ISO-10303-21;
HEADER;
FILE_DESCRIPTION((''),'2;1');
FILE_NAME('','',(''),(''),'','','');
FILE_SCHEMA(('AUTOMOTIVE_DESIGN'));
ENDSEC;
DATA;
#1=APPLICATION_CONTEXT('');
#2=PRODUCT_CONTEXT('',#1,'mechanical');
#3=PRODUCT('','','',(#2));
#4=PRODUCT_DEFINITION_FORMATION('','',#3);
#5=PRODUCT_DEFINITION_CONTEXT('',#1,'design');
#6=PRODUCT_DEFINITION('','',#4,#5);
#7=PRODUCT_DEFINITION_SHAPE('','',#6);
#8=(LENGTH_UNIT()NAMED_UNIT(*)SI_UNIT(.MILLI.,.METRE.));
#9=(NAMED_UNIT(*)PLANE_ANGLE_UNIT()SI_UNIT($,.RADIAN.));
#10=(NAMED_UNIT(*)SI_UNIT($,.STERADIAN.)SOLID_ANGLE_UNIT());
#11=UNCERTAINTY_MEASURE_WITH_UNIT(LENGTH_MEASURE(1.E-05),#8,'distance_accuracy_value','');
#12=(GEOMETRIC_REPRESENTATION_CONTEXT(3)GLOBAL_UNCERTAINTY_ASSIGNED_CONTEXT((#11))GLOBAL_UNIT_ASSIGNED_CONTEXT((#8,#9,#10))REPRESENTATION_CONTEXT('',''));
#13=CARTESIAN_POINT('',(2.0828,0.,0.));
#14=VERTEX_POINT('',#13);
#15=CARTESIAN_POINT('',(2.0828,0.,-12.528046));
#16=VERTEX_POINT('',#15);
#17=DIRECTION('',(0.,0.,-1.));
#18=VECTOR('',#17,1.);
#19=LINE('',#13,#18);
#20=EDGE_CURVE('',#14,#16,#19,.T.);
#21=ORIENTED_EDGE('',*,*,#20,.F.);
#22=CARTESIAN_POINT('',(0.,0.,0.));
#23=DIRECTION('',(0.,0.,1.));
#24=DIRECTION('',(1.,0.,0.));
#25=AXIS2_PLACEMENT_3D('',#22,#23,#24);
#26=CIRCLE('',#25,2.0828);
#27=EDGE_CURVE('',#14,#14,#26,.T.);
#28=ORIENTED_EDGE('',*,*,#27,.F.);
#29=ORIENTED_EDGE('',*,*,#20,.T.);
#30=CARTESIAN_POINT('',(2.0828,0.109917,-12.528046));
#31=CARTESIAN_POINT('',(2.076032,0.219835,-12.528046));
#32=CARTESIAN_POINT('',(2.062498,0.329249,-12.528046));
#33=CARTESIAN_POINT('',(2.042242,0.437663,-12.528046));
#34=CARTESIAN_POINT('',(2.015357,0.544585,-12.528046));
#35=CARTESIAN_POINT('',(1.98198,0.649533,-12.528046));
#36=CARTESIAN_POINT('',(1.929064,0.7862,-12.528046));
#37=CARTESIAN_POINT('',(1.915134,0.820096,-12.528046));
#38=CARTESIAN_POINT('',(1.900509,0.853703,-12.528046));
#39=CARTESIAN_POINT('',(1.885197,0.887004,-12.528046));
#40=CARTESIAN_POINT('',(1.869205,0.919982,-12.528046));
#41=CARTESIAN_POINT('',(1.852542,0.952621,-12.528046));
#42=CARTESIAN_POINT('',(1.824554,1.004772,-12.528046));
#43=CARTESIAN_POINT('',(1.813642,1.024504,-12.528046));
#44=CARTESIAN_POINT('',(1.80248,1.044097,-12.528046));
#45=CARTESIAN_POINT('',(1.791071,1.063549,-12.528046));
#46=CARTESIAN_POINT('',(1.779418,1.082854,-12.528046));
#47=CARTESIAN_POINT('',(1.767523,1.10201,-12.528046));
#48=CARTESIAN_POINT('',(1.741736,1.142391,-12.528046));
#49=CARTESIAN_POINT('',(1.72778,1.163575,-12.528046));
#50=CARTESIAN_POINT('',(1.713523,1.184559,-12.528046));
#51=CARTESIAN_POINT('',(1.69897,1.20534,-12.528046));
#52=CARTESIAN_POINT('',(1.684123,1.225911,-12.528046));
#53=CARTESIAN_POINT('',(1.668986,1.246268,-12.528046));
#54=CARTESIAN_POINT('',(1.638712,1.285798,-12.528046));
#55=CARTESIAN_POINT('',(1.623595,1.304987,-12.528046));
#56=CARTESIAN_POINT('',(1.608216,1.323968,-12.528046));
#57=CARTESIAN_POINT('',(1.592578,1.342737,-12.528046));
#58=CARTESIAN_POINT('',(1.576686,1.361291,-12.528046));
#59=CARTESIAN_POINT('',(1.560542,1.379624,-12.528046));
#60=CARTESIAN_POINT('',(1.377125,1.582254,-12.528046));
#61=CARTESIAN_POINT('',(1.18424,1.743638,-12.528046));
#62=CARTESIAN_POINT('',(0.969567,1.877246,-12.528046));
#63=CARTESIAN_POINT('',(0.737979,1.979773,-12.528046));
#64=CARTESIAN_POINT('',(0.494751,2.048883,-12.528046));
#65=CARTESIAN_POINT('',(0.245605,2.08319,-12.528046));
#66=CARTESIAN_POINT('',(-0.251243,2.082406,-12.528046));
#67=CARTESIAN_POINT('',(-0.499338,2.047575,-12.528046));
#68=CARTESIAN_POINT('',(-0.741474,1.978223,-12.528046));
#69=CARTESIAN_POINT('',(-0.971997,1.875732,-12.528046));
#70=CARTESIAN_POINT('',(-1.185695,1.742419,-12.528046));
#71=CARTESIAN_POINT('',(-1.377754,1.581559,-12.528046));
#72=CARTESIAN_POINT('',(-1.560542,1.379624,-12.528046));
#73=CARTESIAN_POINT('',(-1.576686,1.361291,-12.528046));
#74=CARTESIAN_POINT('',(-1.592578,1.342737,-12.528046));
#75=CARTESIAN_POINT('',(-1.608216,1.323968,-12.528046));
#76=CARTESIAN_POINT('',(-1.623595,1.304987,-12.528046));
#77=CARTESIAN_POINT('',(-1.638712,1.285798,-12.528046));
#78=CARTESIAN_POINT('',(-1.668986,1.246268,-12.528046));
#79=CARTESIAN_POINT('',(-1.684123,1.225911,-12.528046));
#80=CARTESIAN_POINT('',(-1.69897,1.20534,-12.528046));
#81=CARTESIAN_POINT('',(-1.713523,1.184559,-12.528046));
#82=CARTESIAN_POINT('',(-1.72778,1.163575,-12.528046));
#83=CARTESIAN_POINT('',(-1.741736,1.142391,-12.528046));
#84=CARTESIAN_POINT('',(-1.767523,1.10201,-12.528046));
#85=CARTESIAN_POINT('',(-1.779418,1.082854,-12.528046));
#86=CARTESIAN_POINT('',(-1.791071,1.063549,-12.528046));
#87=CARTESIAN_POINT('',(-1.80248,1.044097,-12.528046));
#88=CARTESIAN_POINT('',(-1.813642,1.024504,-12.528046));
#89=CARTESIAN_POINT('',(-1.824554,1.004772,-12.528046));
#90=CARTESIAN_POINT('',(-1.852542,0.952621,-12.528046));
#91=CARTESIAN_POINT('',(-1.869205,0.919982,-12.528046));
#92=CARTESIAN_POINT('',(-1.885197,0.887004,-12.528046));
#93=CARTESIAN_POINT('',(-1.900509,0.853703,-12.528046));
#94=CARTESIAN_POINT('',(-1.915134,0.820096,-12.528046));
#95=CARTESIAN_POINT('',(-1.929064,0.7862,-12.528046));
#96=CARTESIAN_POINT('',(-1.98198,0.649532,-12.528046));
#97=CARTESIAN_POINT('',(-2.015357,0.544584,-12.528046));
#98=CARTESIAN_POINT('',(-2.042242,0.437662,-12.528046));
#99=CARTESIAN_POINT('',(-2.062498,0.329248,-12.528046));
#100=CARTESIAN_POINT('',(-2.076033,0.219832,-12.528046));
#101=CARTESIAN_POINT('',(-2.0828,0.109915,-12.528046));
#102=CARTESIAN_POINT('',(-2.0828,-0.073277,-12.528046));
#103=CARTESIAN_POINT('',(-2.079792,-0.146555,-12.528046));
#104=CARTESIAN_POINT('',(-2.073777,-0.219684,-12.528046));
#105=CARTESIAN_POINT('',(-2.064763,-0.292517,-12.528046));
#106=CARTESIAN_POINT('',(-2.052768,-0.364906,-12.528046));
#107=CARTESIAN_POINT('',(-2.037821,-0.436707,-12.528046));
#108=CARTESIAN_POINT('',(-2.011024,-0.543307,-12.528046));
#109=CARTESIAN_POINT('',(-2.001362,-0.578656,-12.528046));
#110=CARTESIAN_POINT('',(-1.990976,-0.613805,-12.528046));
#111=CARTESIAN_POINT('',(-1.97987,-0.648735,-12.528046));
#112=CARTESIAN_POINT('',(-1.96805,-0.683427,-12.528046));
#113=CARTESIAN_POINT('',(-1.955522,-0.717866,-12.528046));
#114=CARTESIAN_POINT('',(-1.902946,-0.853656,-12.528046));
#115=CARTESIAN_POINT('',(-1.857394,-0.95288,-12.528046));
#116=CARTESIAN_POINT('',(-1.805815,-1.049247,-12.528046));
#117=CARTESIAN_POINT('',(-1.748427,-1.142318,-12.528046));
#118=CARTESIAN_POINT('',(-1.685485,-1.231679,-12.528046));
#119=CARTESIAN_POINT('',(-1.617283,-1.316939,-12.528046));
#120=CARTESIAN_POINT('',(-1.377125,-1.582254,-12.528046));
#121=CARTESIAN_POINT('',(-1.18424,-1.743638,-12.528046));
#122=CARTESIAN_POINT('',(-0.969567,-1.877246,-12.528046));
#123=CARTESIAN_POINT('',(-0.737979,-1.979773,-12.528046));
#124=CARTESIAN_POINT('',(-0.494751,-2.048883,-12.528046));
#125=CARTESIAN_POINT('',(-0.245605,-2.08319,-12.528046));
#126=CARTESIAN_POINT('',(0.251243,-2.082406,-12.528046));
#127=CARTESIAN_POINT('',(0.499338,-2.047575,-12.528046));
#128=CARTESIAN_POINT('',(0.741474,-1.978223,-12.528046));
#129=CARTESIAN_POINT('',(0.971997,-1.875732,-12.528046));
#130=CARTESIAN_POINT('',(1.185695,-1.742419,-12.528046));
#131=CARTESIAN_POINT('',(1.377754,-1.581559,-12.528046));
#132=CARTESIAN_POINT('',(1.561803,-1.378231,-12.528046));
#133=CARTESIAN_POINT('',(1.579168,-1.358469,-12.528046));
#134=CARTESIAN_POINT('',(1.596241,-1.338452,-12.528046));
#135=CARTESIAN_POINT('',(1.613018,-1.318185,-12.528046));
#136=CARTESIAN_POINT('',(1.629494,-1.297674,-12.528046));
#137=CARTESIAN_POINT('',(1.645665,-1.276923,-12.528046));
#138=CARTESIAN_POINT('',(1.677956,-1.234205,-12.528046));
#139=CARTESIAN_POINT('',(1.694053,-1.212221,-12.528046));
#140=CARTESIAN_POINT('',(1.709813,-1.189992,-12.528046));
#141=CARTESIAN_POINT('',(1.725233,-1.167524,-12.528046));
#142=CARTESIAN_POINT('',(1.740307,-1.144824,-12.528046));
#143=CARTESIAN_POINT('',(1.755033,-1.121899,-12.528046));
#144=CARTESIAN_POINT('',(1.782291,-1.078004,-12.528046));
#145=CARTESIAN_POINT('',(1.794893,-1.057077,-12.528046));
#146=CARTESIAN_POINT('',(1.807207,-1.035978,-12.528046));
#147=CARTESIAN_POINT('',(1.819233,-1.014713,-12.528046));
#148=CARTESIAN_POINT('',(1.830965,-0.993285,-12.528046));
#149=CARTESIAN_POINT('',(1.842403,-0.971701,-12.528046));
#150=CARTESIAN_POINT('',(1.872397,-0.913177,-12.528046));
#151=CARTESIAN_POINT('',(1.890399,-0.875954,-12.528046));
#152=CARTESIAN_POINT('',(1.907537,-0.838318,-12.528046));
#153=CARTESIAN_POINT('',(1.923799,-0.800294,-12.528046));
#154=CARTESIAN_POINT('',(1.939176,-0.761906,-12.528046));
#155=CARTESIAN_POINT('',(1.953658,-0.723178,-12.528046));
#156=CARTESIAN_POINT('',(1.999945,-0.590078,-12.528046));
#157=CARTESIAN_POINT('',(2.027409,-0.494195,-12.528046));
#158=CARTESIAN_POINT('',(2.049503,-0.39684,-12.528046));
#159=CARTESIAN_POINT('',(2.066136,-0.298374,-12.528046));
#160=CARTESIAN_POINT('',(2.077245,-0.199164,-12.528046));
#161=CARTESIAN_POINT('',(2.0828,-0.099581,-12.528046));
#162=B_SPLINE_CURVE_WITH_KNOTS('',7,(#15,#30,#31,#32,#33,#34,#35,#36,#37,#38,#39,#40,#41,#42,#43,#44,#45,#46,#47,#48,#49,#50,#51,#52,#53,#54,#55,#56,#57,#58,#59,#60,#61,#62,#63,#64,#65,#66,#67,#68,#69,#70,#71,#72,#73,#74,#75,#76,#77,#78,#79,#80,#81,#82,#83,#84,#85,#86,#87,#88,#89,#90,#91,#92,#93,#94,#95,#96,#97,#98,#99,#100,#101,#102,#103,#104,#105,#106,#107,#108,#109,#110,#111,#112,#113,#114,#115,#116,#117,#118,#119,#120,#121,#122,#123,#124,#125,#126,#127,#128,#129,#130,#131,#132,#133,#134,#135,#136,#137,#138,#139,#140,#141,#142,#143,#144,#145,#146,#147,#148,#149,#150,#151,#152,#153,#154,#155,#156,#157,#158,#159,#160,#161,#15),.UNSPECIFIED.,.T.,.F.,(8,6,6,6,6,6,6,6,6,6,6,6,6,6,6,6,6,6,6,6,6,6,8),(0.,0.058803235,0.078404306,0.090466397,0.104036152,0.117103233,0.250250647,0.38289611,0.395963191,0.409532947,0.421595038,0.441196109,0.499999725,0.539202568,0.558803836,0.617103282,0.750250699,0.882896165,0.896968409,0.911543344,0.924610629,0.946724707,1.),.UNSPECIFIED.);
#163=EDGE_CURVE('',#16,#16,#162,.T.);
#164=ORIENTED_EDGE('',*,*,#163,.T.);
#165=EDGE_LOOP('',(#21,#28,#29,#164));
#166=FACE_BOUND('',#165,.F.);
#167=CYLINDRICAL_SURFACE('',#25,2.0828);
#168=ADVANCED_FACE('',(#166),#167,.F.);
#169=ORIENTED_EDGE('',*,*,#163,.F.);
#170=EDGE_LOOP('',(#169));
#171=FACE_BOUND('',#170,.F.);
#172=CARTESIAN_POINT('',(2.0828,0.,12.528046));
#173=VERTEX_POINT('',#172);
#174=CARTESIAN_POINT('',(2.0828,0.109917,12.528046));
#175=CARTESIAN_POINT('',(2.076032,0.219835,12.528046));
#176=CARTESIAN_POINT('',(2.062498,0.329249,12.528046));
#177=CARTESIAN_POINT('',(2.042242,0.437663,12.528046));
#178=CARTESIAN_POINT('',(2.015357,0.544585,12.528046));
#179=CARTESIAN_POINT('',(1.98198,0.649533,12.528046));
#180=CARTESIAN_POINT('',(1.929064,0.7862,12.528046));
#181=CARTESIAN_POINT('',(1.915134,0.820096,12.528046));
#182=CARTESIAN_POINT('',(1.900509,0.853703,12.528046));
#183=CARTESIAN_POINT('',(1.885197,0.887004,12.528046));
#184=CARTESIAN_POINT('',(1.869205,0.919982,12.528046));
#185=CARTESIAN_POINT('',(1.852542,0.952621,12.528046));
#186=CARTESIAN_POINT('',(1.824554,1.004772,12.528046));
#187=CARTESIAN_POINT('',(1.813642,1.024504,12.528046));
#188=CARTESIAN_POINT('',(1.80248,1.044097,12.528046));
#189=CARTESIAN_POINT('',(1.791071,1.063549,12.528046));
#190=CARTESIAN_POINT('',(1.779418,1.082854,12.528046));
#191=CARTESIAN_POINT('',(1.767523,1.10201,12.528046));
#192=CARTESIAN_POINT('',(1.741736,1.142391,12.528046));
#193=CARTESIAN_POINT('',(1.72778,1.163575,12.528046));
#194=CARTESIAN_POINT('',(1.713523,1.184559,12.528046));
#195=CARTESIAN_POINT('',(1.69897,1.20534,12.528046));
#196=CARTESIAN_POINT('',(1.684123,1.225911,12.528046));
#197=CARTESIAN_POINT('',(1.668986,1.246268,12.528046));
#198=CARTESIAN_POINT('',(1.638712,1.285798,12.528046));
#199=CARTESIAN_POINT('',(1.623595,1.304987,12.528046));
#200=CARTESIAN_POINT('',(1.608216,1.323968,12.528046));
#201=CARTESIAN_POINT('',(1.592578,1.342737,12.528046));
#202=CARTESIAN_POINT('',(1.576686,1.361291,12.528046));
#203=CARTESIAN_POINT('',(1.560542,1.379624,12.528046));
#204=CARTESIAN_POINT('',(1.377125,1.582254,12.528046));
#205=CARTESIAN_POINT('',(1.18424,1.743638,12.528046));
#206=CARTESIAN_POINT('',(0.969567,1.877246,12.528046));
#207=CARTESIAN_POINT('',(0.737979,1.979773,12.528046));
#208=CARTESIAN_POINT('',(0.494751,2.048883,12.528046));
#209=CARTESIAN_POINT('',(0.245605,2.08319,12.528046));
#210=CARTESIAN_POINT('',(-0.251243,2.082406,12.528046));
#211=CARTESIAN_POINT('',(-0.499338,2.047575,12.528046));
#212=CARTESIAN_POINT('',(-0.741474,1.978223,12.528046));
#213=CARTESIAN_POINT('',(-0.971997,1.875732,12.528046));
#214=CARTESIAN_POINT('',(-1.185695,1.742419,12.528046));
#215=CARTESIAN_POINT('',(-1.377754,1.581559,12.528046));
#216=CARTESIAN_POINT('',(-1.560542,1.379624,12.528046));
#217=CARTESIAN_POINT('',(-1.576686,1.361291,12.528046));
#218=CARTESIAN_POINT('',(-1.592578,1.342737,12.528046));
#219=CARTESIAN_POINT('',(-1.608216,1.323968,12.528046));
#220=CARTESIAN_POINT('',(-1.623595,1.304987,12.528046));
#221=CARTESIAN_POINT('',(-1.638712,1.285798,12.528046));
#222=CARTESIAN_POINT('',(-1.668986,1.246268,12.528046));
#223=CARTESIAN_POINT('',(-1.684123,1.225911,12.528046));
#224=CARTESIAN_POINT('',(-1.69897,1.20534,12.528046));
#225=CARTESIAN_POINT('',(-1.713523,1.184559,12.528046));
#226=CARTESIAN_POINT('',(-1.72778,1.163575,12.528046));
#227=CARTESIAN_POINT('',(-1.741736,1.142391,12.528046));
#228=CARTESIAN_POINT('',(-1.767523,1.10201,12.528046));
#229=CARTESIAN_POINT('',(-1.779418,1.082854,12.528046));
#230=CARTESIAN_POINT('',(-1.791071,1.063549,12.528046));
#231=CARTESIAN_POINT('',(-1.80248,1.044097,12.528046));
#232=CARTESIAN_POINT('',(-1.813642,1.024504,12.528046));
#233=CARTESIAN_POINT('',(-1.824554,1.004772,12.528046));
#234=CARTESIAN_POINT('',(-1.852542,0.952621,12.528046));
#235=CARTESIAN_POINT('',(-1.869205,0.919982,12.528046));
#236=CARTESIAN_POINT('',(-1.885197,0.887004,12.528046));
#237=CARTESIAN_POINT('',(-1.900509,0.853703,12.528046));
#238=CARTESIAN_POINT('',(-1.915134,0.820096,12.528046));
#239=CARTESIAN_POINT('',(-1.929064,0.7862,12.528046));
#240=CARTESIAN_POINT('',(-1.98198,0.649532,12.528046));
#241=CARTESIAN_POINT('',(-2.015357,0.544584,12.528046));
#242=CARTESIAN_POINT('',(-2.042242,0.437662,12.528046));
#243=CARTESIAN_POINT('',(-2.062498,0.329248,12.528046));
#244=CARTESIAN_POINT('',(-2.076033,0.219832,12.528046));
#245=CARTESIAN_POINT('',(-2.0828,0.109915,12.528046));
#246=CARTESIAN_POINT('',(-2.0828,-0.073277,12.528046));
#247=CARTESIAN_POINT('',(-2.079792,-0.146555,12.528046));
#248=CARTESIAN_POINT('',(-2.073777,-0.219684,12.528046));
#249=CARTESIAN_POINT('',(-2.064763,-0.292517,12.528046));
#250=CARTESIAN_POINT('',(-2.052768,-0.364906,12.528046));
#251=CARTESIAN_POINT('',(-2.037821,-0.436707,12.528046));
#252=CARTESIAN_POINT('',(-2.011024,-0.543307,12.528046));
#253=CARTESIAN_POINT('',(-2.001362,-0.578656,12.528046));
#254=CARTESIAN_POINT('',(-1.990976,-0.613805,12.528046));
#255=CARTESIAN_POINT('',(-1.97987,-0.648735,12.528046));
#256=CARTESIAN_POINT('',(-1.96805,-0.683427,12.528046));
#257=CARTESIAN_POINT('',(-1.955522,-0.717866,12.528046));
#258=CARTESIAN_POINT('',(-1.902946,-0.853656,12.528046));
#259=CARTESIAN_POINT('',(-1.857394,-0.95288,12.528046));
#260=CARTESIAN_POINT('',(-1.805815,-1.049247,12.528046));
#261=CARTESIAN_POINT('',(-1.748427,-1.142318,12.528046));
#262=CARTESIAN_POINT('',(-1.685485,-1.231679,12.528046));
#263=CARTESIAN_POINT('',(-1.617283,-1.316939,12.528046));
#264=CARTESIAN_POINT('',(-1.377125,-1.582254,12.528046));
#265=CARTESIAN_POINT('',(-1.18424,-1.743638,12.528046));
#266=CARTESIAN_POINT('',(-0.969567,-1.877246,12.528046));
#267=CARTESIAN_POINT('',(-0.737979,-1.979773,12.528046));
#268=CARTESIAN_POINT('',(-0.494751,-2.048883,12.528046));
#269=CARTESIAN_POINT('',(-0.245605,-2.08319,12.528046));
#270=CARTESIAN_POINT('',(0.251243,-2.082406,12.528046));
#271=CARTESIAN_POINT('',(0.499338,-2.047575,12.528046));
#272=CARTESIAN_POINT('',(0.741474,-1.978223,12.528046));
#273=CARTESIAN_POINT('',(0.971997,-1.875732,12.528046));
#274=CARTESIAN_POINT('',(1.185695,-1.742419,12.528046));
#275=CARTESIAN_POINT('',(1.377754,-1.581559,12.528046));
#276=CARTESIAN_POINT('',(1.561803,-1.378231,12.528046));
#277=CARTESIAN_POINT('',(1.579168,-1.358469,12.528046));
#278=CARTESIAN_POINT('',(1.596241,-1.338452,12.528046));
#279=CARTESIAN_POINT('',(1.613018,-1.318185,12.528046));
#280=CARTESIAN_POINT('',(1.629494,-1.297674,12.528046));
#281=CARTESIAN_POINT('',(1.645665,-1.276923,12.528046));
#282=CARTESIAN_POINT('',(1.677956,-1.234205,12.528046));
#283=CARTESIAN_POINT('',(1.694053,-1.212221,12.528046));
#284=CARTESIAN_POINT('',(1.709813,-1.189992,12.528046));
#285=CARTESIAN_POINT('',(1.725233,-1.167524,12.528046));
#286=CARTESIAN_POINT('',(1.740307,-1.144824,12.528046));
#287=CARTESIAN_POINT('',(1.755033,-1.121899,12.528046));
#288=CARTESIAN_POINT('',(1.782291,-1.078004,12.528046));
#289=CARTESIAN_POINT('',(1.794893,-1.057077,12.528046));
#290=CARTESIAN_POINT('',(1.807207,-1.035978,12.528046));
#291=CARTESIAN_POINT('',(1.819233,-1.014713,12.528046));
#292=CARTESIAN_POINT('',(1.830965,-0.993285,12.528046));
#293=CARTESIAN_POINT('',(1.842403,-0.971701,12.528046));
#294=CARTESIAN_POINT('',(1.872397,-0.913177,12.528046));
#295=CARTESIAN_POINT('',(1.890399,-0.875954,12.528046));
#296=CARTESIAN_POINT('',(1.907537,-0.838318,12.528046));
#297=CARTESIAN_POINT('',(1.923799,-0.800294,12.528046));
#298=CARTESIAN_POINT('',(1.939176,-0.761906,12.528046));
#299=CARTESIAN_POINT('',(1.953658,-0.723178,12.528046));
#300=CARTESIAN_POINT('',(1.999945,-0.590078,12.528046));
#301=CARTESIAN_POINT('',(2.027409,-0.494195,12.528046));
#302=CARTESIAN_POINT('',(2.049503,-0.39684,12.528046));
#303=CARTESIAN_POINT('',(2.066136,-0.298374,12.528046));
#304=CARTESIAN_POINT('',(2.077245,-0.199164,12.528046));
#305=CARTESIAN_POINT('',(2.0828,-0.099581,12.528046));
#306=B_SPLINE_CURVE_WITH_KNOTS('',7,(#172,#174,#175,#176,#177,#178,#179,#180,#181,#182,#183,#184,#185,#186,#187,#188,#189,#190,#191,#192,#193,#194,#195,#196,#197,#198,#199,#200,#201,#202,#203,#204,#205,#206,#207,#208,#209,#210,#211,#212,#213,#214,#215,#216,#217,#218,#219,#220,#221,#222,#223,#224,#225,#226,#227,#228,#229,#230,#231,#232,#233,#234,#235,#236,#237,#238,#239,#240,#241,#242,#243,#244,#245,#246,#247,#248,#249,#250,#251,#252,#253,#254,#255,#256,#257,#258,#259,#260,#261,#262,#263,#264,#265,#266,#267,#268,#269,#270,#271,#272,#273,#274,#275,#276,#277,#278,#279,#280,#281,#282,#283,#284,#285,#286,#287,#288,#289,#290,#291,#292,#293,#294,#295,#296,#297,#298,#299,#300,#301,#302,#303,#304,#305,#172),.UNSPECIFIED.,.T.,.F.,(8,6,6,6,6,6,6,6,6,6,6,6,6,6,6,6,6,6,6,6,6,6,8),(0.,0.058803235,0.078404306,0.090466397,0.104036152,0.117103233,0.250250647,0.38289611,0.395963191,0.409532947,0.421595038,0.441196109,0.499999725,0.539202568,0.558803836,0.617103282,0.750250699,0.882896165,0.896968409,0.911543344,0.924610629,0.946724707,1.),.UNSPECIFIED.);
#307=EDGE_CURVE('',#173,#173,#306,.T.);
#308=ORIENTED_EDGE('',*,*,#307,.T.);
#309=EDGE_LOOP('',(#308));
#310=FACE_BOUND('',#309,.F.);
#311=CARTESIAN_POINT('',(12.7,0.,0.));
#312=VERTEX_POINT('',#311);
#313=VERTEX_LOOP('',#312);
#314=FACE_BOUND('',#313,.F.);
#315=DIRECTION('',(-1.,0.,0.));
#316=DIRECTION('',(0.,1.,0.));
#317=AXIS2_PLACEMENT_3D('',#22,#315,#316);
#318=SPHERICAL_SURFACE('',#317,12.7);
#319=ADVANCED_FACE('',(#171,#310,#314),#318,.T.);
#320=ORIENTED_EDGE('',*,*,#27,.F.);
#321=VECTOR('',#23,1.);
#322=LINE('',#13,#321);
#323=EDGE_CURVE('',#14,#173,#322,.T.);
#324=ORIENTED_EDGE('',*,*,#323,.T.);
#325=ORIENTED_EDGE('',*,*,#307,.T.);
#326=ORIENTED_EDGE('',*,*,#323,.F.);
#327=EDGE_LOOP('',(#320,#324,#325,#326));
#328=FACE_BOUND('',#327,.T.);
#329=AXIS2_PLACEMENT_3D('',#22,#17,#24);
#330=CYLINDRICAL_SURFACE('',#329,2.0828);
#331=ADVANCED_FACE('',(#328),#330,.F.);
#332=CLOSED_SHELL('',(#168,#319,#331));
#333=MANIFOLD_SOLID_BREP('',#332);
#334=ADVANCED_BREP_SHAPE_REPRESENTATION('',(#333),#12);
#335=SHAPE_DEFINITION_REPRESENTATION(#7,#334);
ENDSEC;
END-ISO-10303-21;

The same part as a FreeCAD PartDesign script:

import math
import FreeCAD as App
import Part
import Sketcher

V = App.Vector
Q = App.Units.Quantity

doc = App.newDocument("Part")
params = doc.addObject("Spreadsheet::Sheet", "Params")
for row, (alias, value) in enumerate([
    ("sketch1_radius", "0.5 in"),
    ("revolution_angle", "360 deg"),
    ("sketch2_diameter", "0.164 in"),
    ("pocket1_length", "1 in"),
], start=1):
    params.set(f"A{row}", alias)
    params.set(f"B{row}", "=" + value)
    params.setAlias(f"B{row}", alias)

body = doc.addObject("PartDesign::Body", "Body")

# Sketch on XY plane
sketch1 = doc.addObject("Sketcher::SketchObject", "Sketch")
body.addObject(sketch1)
sketch1.AttachmentSupport = (doc.XY_Plane, [""])
sketch1.MapMode = "FlatFace"
sketch1.addGeometry([
    Part.ArcOfCircle(Part.Circle(V(0, 0, 0), V(0, 0, 1), 13), math.radians(0), math.radians(180)),
    Part.LineSegment(V(-13, 0, 0), V(13, 0, 0)),
], False)
sketch1.addConstraint([
    Sketcher.Constraint("Coincident", 0, 1, 1, 2),
    Sketcher.Constraint("Coincident", 1, 1, 0, 2),
    Sketcher.Constraint("Horizontal", 1),
    Sketcher.Constraint("Coincident", 0, 3, -1, 1),
    Sketcher.Constraint("PointOnObject", 0, 1, -1),
    Sketcher.Constraint("Radius", 0, Q("0.5 in")),
])
sketch1.setExpression("Constraints[5]", "Params.sketch1_radius")
revolution = doc.addObject("PartDesign::Revolution", "Revolution")
body.addObject(revolution)
revolution.Profile = sketch1
revolution.ReferenceAxis = (sketch1, ["H_Axis"])
revolution.setExpression("Angle", "Params.revolution_angle")

# Sketch on XY plane
sketch2 = doc.addObject("Sketcher::SketchObject", "Sketch001")
body.addObject(sketch2)
sketch2.AttachmentSupport = (doc.XY_Plane, [""])
sketch2.MapMode = "FlatFace"
sketch2.addGeometry(Part.Circle(V(0, 0, 0), V(0, 0, 1), 2.1), False)
sketch2.addConstraint([
    Sketcher.Constraint("Coincident", 0, 3, -1, 1),
    Sketcher.Constraint("Diameter", 0, Q("0.164 in")),
])
sketch2.setExpression("Constraints[1]", "Params.sketch2_diameter")
pocket1 = doc.addObject("PartDesign::Pocket", "Pocket")
body.addObject(pocket1)
pocket1.Profile = sketch2
pocket1.setExpression("Length", "Params.pocket1_length")
pocket1.Midplane = True

doc.recompute()
